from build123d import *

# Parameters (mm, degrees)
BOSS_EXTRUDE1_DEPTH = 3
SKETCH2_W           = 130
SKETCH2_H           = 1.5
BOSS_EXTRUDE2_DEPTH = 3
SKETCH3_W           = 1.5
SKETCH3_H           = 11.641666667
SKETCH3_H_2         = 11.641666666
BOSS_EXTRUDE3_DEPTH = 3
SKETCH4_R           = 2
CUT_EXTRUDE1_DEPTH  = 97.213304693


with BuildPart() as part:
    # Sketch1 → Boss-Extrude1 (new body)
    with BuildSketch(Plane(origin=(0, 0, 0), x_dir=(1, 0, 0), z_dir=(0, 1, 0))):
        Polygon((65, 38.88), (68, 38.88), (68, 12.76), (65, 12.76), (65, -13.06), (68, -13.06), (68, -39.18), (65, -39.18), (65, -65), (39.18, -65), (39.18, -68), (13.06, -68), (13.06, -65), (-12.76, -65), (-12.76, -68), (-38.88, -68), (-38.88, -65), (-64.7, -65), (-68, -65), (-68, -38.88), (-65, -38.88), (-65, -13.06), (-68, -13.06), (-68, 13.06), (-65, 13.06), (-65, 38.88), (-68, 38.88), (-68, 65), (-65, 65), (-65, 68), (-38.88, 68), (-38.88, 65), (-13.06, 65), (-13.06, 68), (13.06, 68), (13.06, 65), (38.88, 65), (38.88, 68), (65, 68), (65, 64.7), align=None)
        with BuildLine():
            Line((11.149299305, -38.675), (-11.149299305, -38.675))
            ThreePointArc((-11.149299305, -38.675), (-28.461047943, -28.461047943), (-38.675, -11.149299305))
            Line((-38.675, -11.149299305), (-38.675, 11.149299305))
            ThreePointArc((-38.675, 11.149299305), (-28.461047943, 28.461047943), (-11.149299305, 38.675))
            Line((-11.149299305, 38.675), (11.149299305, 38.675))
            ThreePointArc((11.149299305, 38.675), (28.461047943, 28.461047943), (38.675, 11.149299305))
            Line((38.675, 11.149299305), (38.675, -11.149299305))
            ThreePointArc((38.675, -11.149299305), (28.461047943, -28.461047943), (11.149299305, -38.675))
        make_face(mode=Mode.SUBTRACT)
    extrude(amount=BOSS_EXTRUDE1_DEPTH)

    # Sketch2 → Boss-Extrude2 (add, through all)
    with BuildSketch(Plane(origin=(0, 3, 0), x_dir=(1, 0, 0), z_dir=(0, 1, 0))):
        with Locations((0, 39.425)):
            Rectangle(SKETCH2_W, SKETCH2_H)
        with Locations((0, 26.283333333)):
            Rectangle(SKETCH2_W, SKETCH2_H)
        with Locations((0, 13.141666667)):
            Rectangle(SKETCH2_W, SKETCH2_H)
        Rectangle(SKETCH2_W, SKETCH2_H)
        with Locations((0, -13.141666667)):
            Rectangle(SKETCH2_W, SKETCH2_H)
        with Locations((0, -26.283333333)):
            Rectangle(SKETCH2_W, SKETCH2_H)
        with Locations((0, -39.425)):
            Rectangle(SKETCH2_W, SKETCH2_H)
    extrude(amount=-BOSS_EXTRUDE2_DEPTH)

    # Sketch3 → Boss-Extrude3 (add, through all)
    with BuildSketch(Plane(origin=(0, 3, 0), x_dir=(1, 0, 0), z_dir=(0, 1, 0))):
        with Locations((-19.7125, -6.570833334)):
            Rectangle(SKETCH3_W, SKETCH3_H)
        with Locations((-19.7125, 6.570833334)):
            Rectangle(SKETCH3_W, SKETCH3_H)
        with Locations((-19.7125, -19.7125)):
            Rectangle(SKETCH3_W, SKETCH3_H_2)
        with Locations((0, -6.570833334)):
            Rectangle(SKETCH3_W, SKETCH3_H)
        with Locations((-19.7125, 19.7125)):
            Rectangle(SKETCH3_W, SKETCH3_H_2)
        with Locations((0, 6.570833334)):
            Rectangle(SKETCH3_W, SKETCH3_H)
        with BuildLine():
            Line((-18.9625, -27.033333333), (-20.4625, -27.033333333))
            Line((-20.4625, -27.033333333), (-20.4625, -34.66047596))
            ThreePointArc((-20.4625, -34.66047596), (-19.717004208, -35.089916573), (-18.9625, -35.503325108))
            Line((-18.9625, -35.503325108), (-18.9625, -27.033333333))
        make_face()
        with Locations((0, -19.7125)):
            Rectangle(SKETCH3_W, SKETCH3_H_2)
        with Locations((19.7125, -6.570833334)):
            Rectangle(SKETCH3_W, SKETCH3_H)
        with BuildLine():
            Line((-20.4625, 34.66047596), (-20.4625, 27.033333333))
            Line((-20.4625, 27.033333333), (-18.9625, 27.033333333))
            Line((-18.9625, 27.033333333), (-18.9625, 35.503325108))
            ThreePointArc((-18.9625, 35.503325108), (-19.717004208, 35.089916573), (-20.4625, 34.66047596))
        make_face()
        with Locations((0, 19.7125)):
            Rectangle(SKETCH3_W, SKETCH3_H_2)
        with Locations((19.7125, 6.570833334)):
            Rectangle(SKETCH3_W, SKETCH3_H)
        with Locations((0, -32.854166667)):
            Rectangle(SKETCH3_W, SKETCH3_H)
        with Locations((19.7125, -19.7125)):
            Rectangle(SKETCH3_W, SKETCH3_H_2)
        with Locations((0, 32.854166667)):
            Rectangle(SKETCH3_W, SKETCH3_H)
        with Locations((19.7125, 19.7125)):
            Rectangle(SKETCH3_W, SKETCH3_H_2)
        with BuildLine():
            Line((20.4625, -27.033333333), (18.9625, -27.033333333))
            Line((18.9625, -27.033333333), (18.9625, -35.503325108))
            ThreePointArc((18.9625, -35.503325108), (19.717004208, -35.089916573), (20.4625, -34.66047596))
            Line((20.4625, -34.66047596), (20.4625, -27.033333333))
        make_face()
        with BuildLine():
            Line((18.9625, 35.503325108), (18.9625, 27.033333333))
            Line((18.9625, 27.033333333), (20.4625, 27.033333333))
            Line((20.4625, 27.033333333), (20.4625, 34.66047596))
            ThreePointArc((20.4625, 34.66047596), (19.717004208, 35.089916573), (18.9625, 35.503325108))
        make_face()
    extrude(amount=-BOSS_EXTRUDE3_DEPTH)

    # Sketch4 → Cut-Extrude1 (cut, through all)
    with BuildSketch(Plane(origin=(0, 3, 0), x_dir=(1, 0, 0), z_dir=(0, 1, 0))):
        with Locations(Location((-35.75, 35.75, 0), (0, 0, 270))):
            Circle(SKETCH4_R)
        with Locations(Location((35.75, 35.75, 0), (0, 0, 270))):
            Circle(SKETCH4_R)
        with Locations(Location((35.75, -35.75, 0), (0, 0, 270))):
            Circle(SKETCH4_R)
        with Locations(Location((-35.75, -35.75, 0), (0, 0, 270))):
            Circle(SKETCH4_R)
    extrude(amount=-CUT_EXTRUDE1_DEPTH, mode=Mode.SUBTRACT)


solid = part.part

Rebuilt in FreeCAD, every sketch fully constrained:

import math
import FreeCAD as App
import Part
import Sketcher
Q = App.Units.Quantity

doc = App.newDocument("Part")
body = doc.addObject("PartDesign::Body", "Body")

sketch1 = doc.addObject("Sketcher::SketchObject", "Sketch")
body.addObject(sketch1)
sketch1.AttachmentSupport = (doc.XZ_Plane, [""])
sketch1.MapMode = "FlatFace"
sketch1.addGeometry([
    Part.LineSegment(App.Vector(68, -38.88, 0), App.Vector(65, -38.88, 0)),
    Part.LineSegment(App.Vector(65, -38.88, 0), App.Vector(65, -68, 0)),
    Part.LineSegment(App.Vector(65, -68, 0), App.Vector(38.88, -68, 0)),
    Part.LineSegment(App.Vector(38.88, -68, 0), App.Vector(38.88, -65, 0)),
    Part.LineSegment(App.Vector(38.88, -65, 0), App.Vector(13.06, -65, 0)),
    Part.LineSegment(App.Vector(13.06, -65, 0), App.Vector(13.06, -68, 0)),
    Part.LineSegment(App.Vector(13.06, -68, 0), App.Vector(-13.06, -68, 0)),
    Part.LineSegment(App.Vector(-13.06, -68, 0), App.Vector(-13.06, -65, 0)),
    Part.LineSegment(App.Vector(-13.06, -65, 0), App.Vector(-38.88, -65, 0)),
    Part.LineSegment(App.Vector(-38.88, -65, 0), App.Vector(-38.88, -68, 0)),
    Part.LineSegment(App.Vector(-38.88, -68, 0), App.Vector(-65, -68, 0)),
    Part.LineSegment(App.Vector(-65, -68, 0), App.Vector(-65, -65, 0)),
    Part.LineSegment(App.Vector(-65, -65, 0), App.Vector(-68, -65, 0)),
    Part.LineSegment(App.Vector(-68, -65, 0), App.Vector(-68, -38.88, 0)),
    Part.LineSegment(App.Vector(-68, -38.88, 0), App.Vector(-65, -38.88, 0)),
    Part.LineSegment(App.Vector(-65, -38.88, 0), App.Vector(-65, -13.06, 0)),
    Part.LineSegment(App.Vector(-65, -13.06, 0), App.Vector(-68, -13.06, 0)),
    Part.LineSegment(App.Vector(-68, -13.06, 0), App.Vector(-68, 13.06, 0)),
    Part.LineSegment(App.Vector(-68, 13.06, 0), App.Vector(-65, 13.06, 0)),
    Part.LineSegment(App.Vector(-65, 13.06, 0), App.Vector(-65, 38.88, 0)),
    Part.LineSegment(App.Vector(-65, 38.88, 0), App.Vector(-68, 38.88, 0)),
    Part.LineSegment(App.Vector(-68, 38.88, 0), App.Vector(-68, 65, 0)),
    Part.LineSegment(App.Vector(-68, 65, 0), App.Vector(-38.88, 65, 0)),
    Part.LineSegment(App.Vector(-38.88, 65, 0), App.Vector(-38.88, 68, 0)),
    Part.LineSegment(App.Vector(-38.88, 68, 0), App.Vector(-12.76, 68, 0)),
    Part.LineSegment(App.Vector(-12.76, 68, 0), App.Vector(-12.76, 65, 0)),
    Part.LineSegment(App.Vector(-12.76, 65, 0), App.Vector(13.06, 65, 0)),
    Part.LineSegment(App.Vector(13.06, 65, 0), App.Vector(13.06, 68, 0)),
    Part.LineSegment(App.Vector(13.06, 68, 0), App.Vector(39.18, 68, 0)),
    Part.LineSegment(App.Vector(39.18, 68, 0), App.Vector(39.18, 65, 0)),
    Part.LineSegment(App.Vector(39.18, 65, 0), App.Vector(65, 65, 0)),
    Part.LineSegment(App.Vector(65, 65, 0), App.Vector(65, 39.18, 0)),
    Part.LineSegment(App.Vector(65, 39.18, 0), App.Vector(68, 39.18, 0)),
    Part.LineSegment(App.Vector(68, 39.18, 0), App.Vector(68, 13.06, 0)),
    Part.LineSegment(App.Vector(68, 13.06, 0), App.Vector(65, 13.06, 0)),
    Part.LineSegment(App.Vector(65, 13.06, 0), App.Vector(65, -12.76, 0)),
    Part.LineSegment(App.Vector(65, -12.76, 0), App.Vector(68, -12.76, 0)),
    Part.LineSegment(App.Vector(68, -12.76, 0), App.Vector(68, -38.88, 0)),
    Part.LineSegment(App.Vector(11.149299, 38.675, 0), App.Vector(-11.149299, 38.675, 0)),
    Part.ArcOfCircle(Part.Circle(App.Vector(0, 0, 0), App.Vector(0, 0, 1), 40.25), math.radians(106.08131), math.radians(163.91869)),
    Part.LineSegment(App.Vector(-38.675, 11.149299, 0), App.Vector(-38.675, -11.149299, 0)),
    Part.ArcOfCircle(Part.Circle(App.Vector(0, 0, 0), App.Vector(0, 0, 1), 40.25), math.radians(-163.91869), math.radians(-106.08131)),
    Part.LineSegment(App.Vector(-11.149299, -38.675, 0), App.Vector(11.149299, -38.675, 0)),
    Part.ArcOfCircle(Part.Circle(App.Vector(0, 0, 0), App.Vector(0, 0, 1), 40.25), math.radians(-73.91869), math.radians(-16.08131)),
    Part.LineSegment(App.Vector(38.675, -11.149299, 0), App.Vector(38.675, 11.149299, 0)),
    Part.ArcOfCircle(Part.Circle(App.Vector(0, 0, 0), App.Vector(0, 0, 1), 40.25), math.radians(16.08131), math.radians(73.91869)),
], False)
sketch1.addConstraint([
    Sketcher.Constraint("Coincident", 0, 2, 1, 1),
    Sketcher.Constraint("Coincident", 1, 2, 2, 1),
    Sketcher.Constraint("Coincident", 2, 2, 3, 1),
    Sketcher.Constraint("Coincident", 3, 2, 4, 1),
    Sketcher.Constraint("Coincident", 4, 2, 5, 1),
    Sketcher.Constraint("Coincident", 5, 2, 6, 1),
    Sketcher.Constraint("Coincident", 6, 2, 7, 1),
    Sketcher.Constraint("Coincident", 7, 2, 8, 1),
    Sketcher.Constraint("Coincident", 8, 2, 9, 1),
    Sketcher.Constraint("Coincident", 9, 2, 10, 1),
    Sketcher.Constraint("Coincident", 10, 2, 11, 1),
    Sketcher.Constraint("Coincident", 11, 2, 12, 1),
    Sketcher.Constraint("Coincident", 12, 2, 13, 1),
    Sketcher.Constraint("Coincident", 13, 2, 14, 1),
    Sketcher.Constraint("Coincident", 14, 2, 15, 1),
    Sketcher.Constraint("Coincident", 15, 2, 16, 1),
    Sketcher.Constraint("Coincident", 16, 2, 17, 1),
    Sketcher.Constraint("Coincident", 17, 2, 18, 1),
    Sketcher.Constraint("Coincident", 18, 2, 19, 1),
    Sketcher.Constraint("Coincident", 19, 2, 20, 1),
    Sketcher.Constraint("Coincident", 20, 2, 21, 1),
    Sketcher.Constraint("Coincident", 21, 2, 22, 1),
    Sketcher.Constraint("Coincident", 22, 2, 23, 1),
    Sketcher.Constraint("Coincident", 23, 2, 24, 1),
    Sketcher.Constraint("Coincident", 24, 2, 25, 1),
    Sketcher.Constraint("Coincident", 25, 2, 26, 1),
    Sketcher.Constraint("Coincident", 26, 2, 27, 1),
    Sketcher.Constraint("Coincident", 27, 2, 28, 1),
    Sketcher.Constraint("Coincident", 28, 2, 29, 1),
    Sketcher.Constraint("Coincident", 29, 2, 30, 1),
    Sketcher.Constraint("Coincident", 30, 2, 31, 1),
    Sketcher.Constraint("Coincident", 31, 2, 32, 1),
    Sketcher.Constraint("Coincident", 32, 2, 33, 1),
    Sketcher.Constraint("Coincident", 33, 2, 34, 1),
    Sketcher.Constraint("Coincident", 34, 2, 35, 1),
    Sketcher.Constraint("Coincident", 35, 2, 36, 1),
    Sketcher.Constraint("Coincident", 36, 2, 37, 1),
    Sketcher.Constraint("Coincident", 37, 2, 0, 1),
    Sketcher.Constraint("Coincident", 38, 2, 39, 1),
    Sketcher.Constraint("Coincident", 39, 2, 40, 1),
    Sketcher.Constraint("Coincident", 40, 2, 41, 1),
    Sketcher.Constraint("Coincident", 41, 2, 42, 1),
    Sketcher.Constraint("Coincident", 42, 2, 43, 1),
    Sketcher.Constraint("Coincident", 43, 2, 44, 1),
    Sketcher.Constraint("Coincident", 44, 2, 45, 1),
    Sketcher.Constraint("Coincident", 45, 2, 38, 1),
    Sketcher.Constraint("Horizontal", 0),
    Sketcher.Constraint("Vertical", 1),
    Sketcher.Constraint("Horizontal", 2),
    Sketcher.Constraint("Vertical", 3),
    Sketcher.Constraint("Horizontal", 4),
    Sketcher.Constraint("Vertical", 5),
    Sketcher.Constraint("Horizontal", 6),
    Sketcher.Constraint("Vertical", 7),
    Sketcher.Constraint("Horizontal", 8),
    Sketcher.Constraint("Vertical", 9),
    Sketcher.Constraint("Horizontal", 10),
    Sketcher.Constraint("Vertical", 11),
    Sketcher.Constraint("Horizontal", 12),
    Sketcher.Constraint("Vertical", 13),
    Sketcher.Constraint("Horizontal", 14),
    Sketcher.Constraint("Vertical", 15),
    Sketcher.Constraint("Horizontal", 16),
    Sketcher.Constraint("Vertical", 17),
    Sketcher.Constraint("Horizontal", 18),
    Sketcher.Constraint("Vertical", 19),
    Sketcher.Constraint("Horizontal", 20),
    Sketcher.Constraint("Vertical", 21),
    Sketcher.Constraint("Horizontal", 22),
    Sketcher.Constraint("Vertical", 23),
    Sketcher.Constraint("Horizontal", 24),
    Sketcher.Constraint("Vertical", 25),
    Sketcher.Constraint("Horizontal", 26),
    Sketcher.Constraint("Vertical", 27),
    Sketcher.Constraint("Horizontal", 28),
    Sketcher.Constraint("Vertical", 29),
    Sketcher.Constraint("Horizontal", 30),
    Sketcher.Constraint("Vertical", 31),
    Sketcher.Constraint("Horizontal", 32),
    Sketcher.Constraint("Vertical", 33),
    Sketcher.Constraint("Horizontal", 34),
    Sketcher.Constraint("Vertical", 35),
    Sketcher.Constraint("Horizontal", 36),
    Sketcher.Constraint("Vertical", 37),
    Sketcher.Constraint("Horizontal", 38),
    Sketcher.Constraint("Vertical", 40),
    Sketcher.Constraint("Horizontal", 42),
    Sketcher.Constraint("Vertical", 44),
    Sketcher.Constraint("Coincident", 39, 3, -1, 1),
    Sketcher.Constraint("Coincident", 41, 3, -1, 1),
    Sketcher.Constraint("Coincident", 43, 3, -1, 1),
    Sketcher.Constraint("Coincident", 45, 3, -1, 1),
    Sketcher.Constraint("Equal", 39, 41),
    Sketcher.Constraint("Equal", 41, 43),
    Sketcher.Constraint("Equal", 43, 45),
    Sketcher.Constraint("Symmetric", 0, 2, 19, 2, -1, 1),
    Sketcher.Constraint("Symmetric", 3, 2, 22, 2, -1, 1),
    Sketcher.Constraint("Symmetric", 7, 2, 26, 2, -1, 1),
    Sketcher.Constraint("Symmetric", 11, 2, 30, 2, -1, 1),
    Sketcher.Constraint("Symmetric", 16, 2, 33, 2, -1, 1),
    Sketcher.Constraint("Symmetric", 4, 2, 7, 2, -2),
    Sketcher.Constraint("Symmetric", 2, 2, 9, 2, -2),
    Sketcher.Constraint("Symmetric", 0, 2, 14, 2, -2),
    Sketcher.Constraint("Symmetric", 18, 2, 34, 2, -2),
    Sketcher.Constraint("Symmetric", 12, 2, 21, 2, -1),
    Sketcher.Constraint("Horizontal", 2, 2, 5, 2),
    Sketcher.Constraint("Horizontal", 24, 2, 27, 2),
    Sketcher.Constraint("Horizontal", 40, 2, 43, 2),
    Sketcher.Constraint("Vertical", 11, 2, 14, 2),
    Sketcher.Constraint("Vertical", 13, 2, 16, 2),
    Sketcher.Constraint("Vertical", 33, 2, 36, 2),
    Sketcher.Constraint("Vertical", 38, 2, 41, 2),
    Sketcher.Constraint("Equal", 2, 6),
    Sketcher.Constraint("Equal", 10, 24),
    Sketcher.Constraint("Equal", 24, 28),
    Sketcher.Constraint("Equal", 22, 1),
    Sketcher.Constraint("Equal", 36, 3),
    Sketcher.Constraint("Equal", 30, 15),
    Sketcher.Constraint("Equal", 13, 17),
    Sketcher.Constraint("Equal", 11, 23),
    Sketcher.Constraint("Equal", 19, 31),
    Sketcher.Constraint("Equal", 31, 35),
    Sketcher.Constraint("Equal", 42, 40),
    Sketcher.Constraint("DistanceX", 0, 2, 0, 1, Q("3 mm")),
    Sketcher.Constraint("Radius", 39, Q("40.25 mm")),
    Sketcher.Constraint("DistanceX", -1, 1, 0, 2, Q("65 mm")),
    Sketcher.Constraint("DistanceX", 2, 2, 2, 1, Q("26.12 mm")),
    Sketcher.Constraint("DistanceX", 38, 2, 38, 1, Q("22.298599 mm")),
])
pad1 = doc.addObject("PartDesign::Pad", "Pad")
body.addObject(pad1)
pad1.Profile = sketch1
pad1.Length = 3
pad1.Reversed = True

sketch2 = doc.addObject("Sketcher::SketchObject", "Sketch001")
body.addObject(sketch2)
sketch2.AttachmentSupport = (doc.XZ_Plane, [""])
sketch2.MapMode = "FlatFace"
sketch2.AttachmentOffset = App.Placement(App.Vector(0, 0, -3), App.Rotation())
sketch2.addGeometry([
    Part.LineSegment(App.Vector(-65, -40.175, 0), App.Vector(-65, -38.675, 0)),
    Part.LineSegment(App.Vector(-65, -38.675, 0), App.Vector(65, -38.675, 0)),
    Part.LineSegment(App.Vector(65, -38.675, 0), App.Vector(65, -40.175, 0)),
    Part.LineSegment(App.Vector(65, -40.175, 0), App.Vector(-65, -40.175, 0)),
    Part.LineSegment(App.Vector(-65, -27.033333, 0), App.Vector(-65, -25.533333, 0)),
    Part.LineSegment(App.Vector(-65, -25.533333, 0), App.Vector(65, -25.533333, 0)),
    Part.LineSegment(App.Vector(65, -25.533333, 0), App.Vector(65, -27.033333, 0)),
    Part.LineSegment(App.Vector(65, -27.033333, 0), App.Vector(-65, -27.033333, 0)),
    Part.LineSegment(App.Vector(-65, -13.891667, 0), App.Vector(-65, -12.391667, 0)),
    Part.LineSegment(App.Vector(-65, -12.391667, 0), App.Vector(65, -12.391667, 0)),
    Part.LineSegment(App.Vector(65, -12.391667, 0), App.Vector(65, -13.891667, 0)),
    Part.LineSegment(App.Vector(65, -13.891667, 0), App.Vector(-65, -13.891667, 0)),
    Part.LineSegment(App.Vector(-65, -0.75, 0), App.Vector(-65, 0.75, 0)),
    Part.LineSegment(App.Vector(-65, 0.75, 0), App.Vector(65, 0.75, 0)),
    Part.LineSegment(App.Vector(65, 0.75, 0), App.Vector(65, -0.75, 0)),
    Part.LineSegment(App.Vector(65, -0.75, 0), App.Vector(-65, -0.75, 0)),
    Part.LineSegment(App.Vector(-65, 12.391667, 0), App.Vector(-65, 13.891667, 0)),
    Part.LineSegment(App.Vector(-65, 13.891667, 0), App.Vector(65, 13.891667, 0)),
    Part.LineSegment(App.Vector(65, 13.891667, 0), App.Vector(65, 12.391667, 0)),
    Part.LineSegment(App.Vector(65, 12.391667, 0), App.Vector(-65, 12.391667, 0)),
    Part.LineSegment(App.Vector(-65, 25.533333, 0), App.Vector(-65, 27.033333, 0)),
    Part.LineSegment(App.Vector(-65, 27.033333, 0), App.Vector(65, 27.033333, 0)),
    Part.LineSegment(App.Vector(65, 27.033333, 0), App.Vector(65, 25.533333, 0)),
    Part.LineSegment(App.Vector(65, 25.533333, 0), App.Vector(-65, 25.533333, 0)),
    Part.LineSegment(App.Vector(-65, 38.675, 0), App.Vector(-65, 40.175, 0)),
    Part.LineSegment(App.Vector(-65, 40.175, 0), App.Vector(65, 40.175, 0)),
    Part.LineSegment(App.Vector(65, 40.175, 0), App.Vector(65, 38.675, 0)),
    Part.LineSegment(App.Vector(65, 38.675, 0), App.Vector(-65, 38.675, 0)),
], False)
sketch2.addConstraint([
    Sketcher.Constraint("Coincident", 0, 2, 1, 1),
    Sketcher.Constraint("Coincident", 1, 2, 2, 1),
    Sketcher.Constraint("Coincident", 2, 2, 3, 1),
    Sketcher.Constraint("Coincident", 3, 2, 0, 1),
    Sketcher.Constraint("Coincident", 4, 2, 5, 1),
    Sketcher.Constraint("Coincident", 5, 2, 6, 1),
    Sketcher.Constraint("Coincident", 6, 2, 7, 1),
    Sketcher.Constraint("Coincident", 7, 2, 4, 1),
    Sketcher.Constraint("Coincident", 8, 2, 9, 1),
    Sketcher.Constraint("Coincident", 9, 2, 10, 1),
    Sketcher.Constraint("Coincident", 10, 2, 11, 1),
    Sketcher.Constraint("Coincident", 11, 2, 8, 1),
    Sketcher.Constraint("Coincident", 12, 2, 13, 1),
    Sketcher.Constraint("Coincident", 13, 2, 14, 1),
    Sketcher.Constraint("Coincident", 14, 2, 15, 1),
    Sketcher.Constraint("Coincident", 15, 2, 12, 1),
    Sketcher.Constraint("Coincident", 16, 2, 17, 1),
    Sketcher.Constraint("Coincident", 17, 2, 18, 1),
    Sketcher.Constraint("Coincident", 18, 2, 19, 1),
    Sketcher.Constraint("Coincident", 19, 2, 16, 1),
    Sketcher.Constraint("Coincident", 20, 2, 21, 1),
    Sketcher.Constraint("Coincident", 21, 2, 22, 1),
    Sketcher.Constraint("Coincident", 22, 2, 23, 1),
    Sketcher.Constraint("Coincident", 23, 2, 20, 1),
    Sketcher.Constraint("Coincident", 24, 2, 25, 1),
    Sketcher.Constraint("Coincident", 25, 2, 26, 1),
    Sketcher.Constraint("Coincident", 26, 2, 27, 1),
    Sketcher.Constraint("Coincident", 27, 2, 24, 1),
    Sketcher.Constraint("Vertical", 0),
    Sketcher.Constraint("Horizontal", 1),
    Sketcher.Constraint("Vertical", 2),
    Sketcher.Constraint("Horizontal", 3),
    Sketcher.Constraint("Vertical", 4),
    Sketcher.Constraint("Horizontal", 5),
    Sketcher.Constraint("Vertical", 6),
    Sketcher.Constraint("Horizontal", 7),
    Sketcher.Constraint("Vertical", 8),
    Sketcher.Constraint("Horizontal", 9),
    Sketcher.Constraint("Vertical", 10),
    Sketcher.Constraint("Horizontal", 11),
    Sketcher.Constraint("Vertical", 12),
    Sketcher.Constraint("Horizontal", 13),
    Sketcher.Constraint("Vertical", 14),
    Sketcher.Constraint("Horizontal", 15),
    Sketcher.Constraint("Vertical", 16),
    Sketcher.Constraint("Horizontal", 17),
    Sketcher.Constraint("Vertical", 18),
    Sketcher.Constraint("Horizontal", 19),
    Sketcher.Constraint("Vertical", 20),
    Sketcher.Constraint("Horizontal", 21),
    Sketcher.Constraint("Vertical", 22),
    Sketcher.Constraint("Horizontal", 23),
    Sketcher.Constraint("Vertical", 24),
    Sketcher.Constraint("Horizontal", 25),
    Sketcher.Constraint("Vertical", 26),
    Sketcher.Constraint("Horizontal", 27),
    Sketcher.Constraint("Symmetric", 12, 2, 14, 2, -1, 1),
    Sketcher.Constraint("Symmetric", 10, 2, 16, 2, -1, 1),
    Sketcher.Constraint("Symmetric", 8, 2, 18, 2, -1, 1),
    Sketcher.Constraint("Symmetric", 6, 2, 20, 2, -1, 1),
    Sketcher.Constraint("Symmetric", 4, 2, 22, 2, -1, 1),
    Sketcher.Constraint("Symmetric", 2, 2, 24, 2, -1, 1),
    Sketcher.Constraint("Symmetric", 0, 2, 26, 2, -1, 1),
    Sketcher.Constraint("Vertical", 3, 2, 4, 2),
    Sketcher.Constraint("Vertical", 2, 2, 5, 2),
    Sketcher.Constraint("Vertical", 7, 2, 8, 2),
    Sketcher.Constraint("Vertical", 6, 2, 9, 2),
    Sketcher.Constraint("Vertical", 11, 2, 12, 2),
    Sketcher.Constraint("Vertical", 10, 2, 13, 2),
    Sketcher.Constraint("Equal", 2, 4),
    Sketcher.Constraint("Equal", 6, 8),
    Sketcher.Constraint("Equal", 10, 12),
    Sketcher.Constraint("DistanceX", 1, 1, 1, 2, Q("130 mm")),
    Sketcher.Constraint("DistanceY", 0, 1, 0, 2, Q("1.5 mm")),
    Sketcher.Constraint("DistanceY", 0, 2, -1, 1, Q("38.675 mm")),
    Sketcher.Constraint("DistanceY", 4, 2, 16, 2, Q("39.425 mm")),
    Sketcher.Constraint("DistanceY", 4, 2, -1, 1, Q("25.533333 mm")),
])
pad2 = doc.addObject("PartDesign::Pad", "Pad001")
body.addObject(pad2)
pad2.Profile = sketch2
pad2.Length = 3

sketch3 = doc.addObject("Sketcher::SketchObject", "Sketch002")
body.addObject(sketch3)
sketch3.AttachmentSupport = (doc.XZ_Plane, [""])
sketch3.MapMode = "FlatFace"
sketch3.AttachmentOffset = App.Placement(App.Vector(0, 0, -3), App.Rotation())
sketch3.addGeometry([
    Part.LineSegment(App.Vector(-20.4625, 0.75, 0), App.Vector(-20.4625, 12.391667, 0)),
    Part.LineSegment(App.Vector(-20.4625, 12.391667, 0), App.Vector(-18.9625, 12.391667, 0)),
    Part.LineSegment(App.Vector(-18.9625, 12.391667, 0), App.Vector(-18.9625, 0.75, 0)),
    Part.LineSegment(App.Vector(-18.9625, 0.75, 0), App.Vector(-20.4625, 0.75, 0)),
    Part.LineSegment(App.Vector(-20.4625, -12.391667, 0), App.Vector(-20.4625, -0.75, 0)),
    Part.LineSegment(App.Vector(-20.4625, -0.75, 0), App.Vector(-18.9625, -0.75, 0)),
    Part.LineSegment(App.Vector(-18.9625, -0.75, 0), App.Vector(-18.9625, -12.391667, 0)),
    Part.LineSegment(App.Vector(-18.9625, -12.391667, 0), App.Vector(-20.4625, -12.391667, 0)),
    Part.LineSegment(App.Vector(-20.4625, 13.891667, 0), App.Vector(-20.4625, 25.533333, 0)),
    Part.LineSegment(App.Vector(-20.4625, 25.533333, 0), App.Vector(-18.9625, 25.533333, 0)),
    Part.LineSegment(App.Vector(-18.9625, 25.533333, 0), App.Vector(-18.9625, 13.891667, 0)),
    Part.LineSegment(App.Vector(-18.9625, 13.891667, 0), App.Vector(-20.4625, 13.891667, 0)),
    Part.LineSegment(App.Vector(-0.75, 0.75, 0), App.Vector(-0.75, 12.391667, 0)),
    Part.LineSegment(App.Vector(-0.75, 12.391667, 0), App.Vector(0.75, 12.391667, 0)),
    Part.LineSegment(App.Vector(0.75, 12.391667, 0), App.Vector(0.75, 0.75, 0)),
    Part.LineSegment(App.Vector(0.75, 0.75, 0), App.Vector(-0.75, 0.75, 0)),
    Part.LineSegment(App.Vector(-20.4625, -25.533333, 0), App.Vector(-20.4625, -13.891667, 0)),
    Part.LineSegment(App.Vector(-20.4625, -13.891667, 0), App.Vector(-18.9625, -13.891667, 0)),
    Part.LineSegment(App.Vector(-18.9625, -13.891667, 0), App.Vector(-18.9625, -25.533333, 0)),
    Part.LineSegment(App.Vector(-18.9625, -25.533333, 0), App.Vector(-20.4625, -25.533333, 0)),
    Part.LineSegment(App.Vector(-0.75, -12.391667, 0), App.Vector(-0.75, -0.75, 0)),
    Part.LineSegment(App.Vector(-0.75, -0.75, 0), App.Vector(0.75, -0.75, 0)),
    Part.LineSegment(App.Vector(0.75, -0.75, 0), App.Vector(0.75, -12.391667, 0)),
    Part.LineSegment(App.Vector(0.75, -12.391667, 0), App.Vector(-0.75, -12.391667, 0)),
    Part.LineSegment(App.Vector(-18.9625, 27.033333, 0), App.Vector(-20.4625, 27.033333, 0)),
    Part.LineSegment(App.Vector(-20.4625, 27.033333, 0), App.Vector(-20.4625, 34.660476, 0)),
    Part.ArcOfCircle(Part.Circle(App.Vector(-0.000001, 0.000002, 0), App.Vector(0, 0, 1), 40.249998), math.radians(118.106894), math.radians(120.556321)),
    Part.LineSegment(App.Vector(-18.9625, 35.503325, 0), App.Vector(-18.9625, 27.033333, 0)),
    Part.LineSegment(App.Vector(-0.75, 13.891667, 0), App.Vector(-0.75, 25.533333, 0)),
    Part.LineSegment(App.Vector(-0.75, 25.533333, 0), App.Vector(0.75, 25.533333, 0)),
    Part.LineSegment(App.Vector(0.75, 25.533333, 0), App.Vector(0.75, 13.891667, 0)),
    Part.LineSegment(App.Vector(0.75, 13.891667, 0), App.Vector(-0.75, 13.891667, 0)),
    Part.LineSegment(App.Vector(18.9625, 0.75, 0), App.Vector(18.9625, 12.391667, 0)),
    Part.LineSegment(App.Vector(18.9625, 12.391667, 0), App.Vector(20.4625, 12.391667, 0)),
    Part.LineSegment(App.Vector(20.4625, 12.391667, 0), App.Vector(20.4625, 0.75, 0)),
    Part.LineSegment(App.Vector(20.4625, 0.75, 0), App.Vector(18.9625, 0.75, 0)),
    Part.LineSegment(App.Vector(-20.4625, -34.660476, 0), App.Vector(-20.4625, -27.033333, 0)),
    Part.LineSegment(App.Vector(-20.4625, -27.033333, 0), App.Vector(-18.9625, -27.033333, 0)),
    Part.LineSegment(App.Vector(-18.9625, -27.033333, 0), App.Vector(-18.9625, -35.503325, 0)),
    Part.ArcOfCircle(Part.Circle(App.Vector(-0.000001, -0.000002, 0), App.Vector(0, 0, 1), 40.249998), math.radians(-120.556321), math.radians(-118.106894)),
    Part.LineSegment(App.Vector(-0.75, -25.533333, 0), App.Vector(-0.75, -13.891667, 0)),
    Part.LineSegment(App.Vector(-0.75, -13.891667, 0), App.Vector(0.75, -13.891667, 0)),
    Part.LineSegment(App.Vector(0.75, -13.891667, 0), App.Vector(0.75, -25.533333, 0)),
    Part.LineSegment(App.Vector(0.75, -25.533333, 0), App.Vector(-0.75, -25.533333, 0)),
    Part.LineSegment(App.Vector(18.9625, -12.391667, 0), App.Vector(18.9625, -0.75, 0)),
    Part.LineSegment(App.Vector(18.9625, -0.75, 0), App.Vector(20.4625, -0.75, 0)),
    Part.LineSegment(App.Vector(20.4625, -0.75, 0), App.Vector(20.4625, -12.391667, 0)),
    Part.LineSegment(App.Vector(20.4625, -12.391667, 0), App.Vector(18.9625, -12.391667, 0)),
    Part.LineSegment(App.Vector(-0.75, 27.033333, 0), App.Vector(-0.75, 38.675, 0)),
    Part.LineSegment(App.Vector(-0.75, 38.675, 0), App.Vector(0.75, 38.675, 0)),
    Part.LineSegment(App.Vector(0.75, 38.675, 0), App.Vector(0.75, 27.033333, 0)),
    Part.LineSegment(App.Vector(0.75, 27.033333, 0), App.Vector(-0.75, 27.033333, 0)),
    Part.LineSegment(App.Vector(18.9625, 13.891667, 0), App.Vector(18.9625, 25.533333, 0)),
    Part.LineSegment(App.Vector(18.9625, 25.533333, 0), App.Vector(20.4625, 25.533333, 0)),
    Part.LineSegment(App.Vector(20.4625, 25.533333, 0), App.Vector(20.4625, 13.891667, 0)),
    Part.LineSegment(App.Vector(20.4625, 13.891667, 0), App.Vector(18.9625, 13.891667, 0)),
    Part.LineSegment(App.Vector(-0.75, -38.675, 0), App.Vector(-0.75, -27.033333, 0)),
    Part.LineSegment(App.Vector(-0.75, -27.033333, 0), App.Vector(0.75, -27.033333, 0)),
    Part.LineSegment(App.Vector(0.75, -27.033333, 0), App.Vector(0.75, -38.675, 0)),
    Part.LineSegment(App.Vector(0.75, -38.675, 0), App.Vector(-0.75, -38.675, 0)),
    Part.LineSegment(App.Vector(18.9625, -25.533333, 0), App.Vector(18.9625, -13.891667, 0)),
    Part.LineSegment(App.Vector(18.9625, -13.891667, 0), App.Vector(20.4625, -13.891667, 0)),
    Part.LineSegment(App.Vector(20.4625, -13.891667, 0), App.Vector(20.4625, -25.533333, 0)),
    Part.LineSegment(App.Vector(20.4625, -25.533333, 0), App.Vector(18.9625, -25.533333, 0)),
    Part.LineSegment(App.Vector(20.4625, 27.033333, 0), App.Vector(18.9625, 27.033333, 0)),
    Part.LineSegment(App.Vector(18.9625, 27.033333, 0), App.Vector(18.9625, 35.503325, 0)),
    Part.ArcOfCircle(Part.Circle(App.Vector(0.000001, 0.000002, 0), App.Vector(0, 0, 1), 40.249998), math.radians(59.443679), math.radians(61.893106)),
    Part.LineSegment(App.Vector(20.4625, 34.660476, 0), App.Vector(20.4625, 27.033333, 0)),
    Part.LineSegment(App.Vector(18.9625, -35.503325, 0), App.Vector(18.9625, -27.033333, 0)),
    Part.LineSegment(App.Vector(18.9625, -27.033333, 0), App.Vector(20.4625, -27.033333, 0)),
    Part.LineSegment(App.Vector(20.4625, -27.033333, 0), App.Vector(20.4625, -34.660476, 0)),
    Part.ArcOfCircle(Part.Circle(App.Vector(0.000001, -0.000002, 0), App.Vector(0, 0, 1), 40.249998), math.radians(-61.893106), math.radians(-59.443679)),
], False)
sketch3.addConstraint([
    Sketcher.Constraint("Coincident", 0, 2, 1, 1),
    Sketcher.Constraint("Coincident", 1, 2, 2, 1),
    Sketcher.Constraint("Coincident", 2, 2, 3, 1),
    Sketcher.Constraint("Coincident", 3, 2, 0, 1),
    Sketcher.Constraint("Coincident", 4, 2, 5, 1),
    Sketcher.Constraint("Coincident", 5, 2, 6, 1),
    Sketcher.Constraint("Coincident", 6, 2, 7, 1),
    Sketcher.Constraint("Coincident", 7, 2, 4, 1),
    Sketcher.Constraint("Coincident", 8, 2, 9, 1),
    Sketcher.Constraint("Coincident", 9, 2, 10, 1),
    Sketcher.Constraint("Coincident", 10, 2, 11, 1),
    Sketcher.Constraint("Coincident", 11, 2, 8, 1),
    Sketcher.Constraint("Coincident", 12, 2, 13, 1),
    Sketcher.Constraint("Coincident", 13, 2, 14, 1),
    Sketcher.Constraint("Coincident", 14, 2, 15, 1),
    Sketcher.Constraint("Coincident", 15, 2, 12, 1),
    Sketcher.Constraint("Coincident", 16, 2, 17, 1),
    Sketcher.Constraint("Coincident", 17, 2, 18, 1),
    Sketcher.Constraint("Coincident", 18, 2, 19, 1),
    Sketcher.Constraint("Coincident", 19, 2, 16, 1),
    Sketcher.Constraint("Coincident", 20, 2, 21, 1),
    Sketcher.Constraint("Coincident", 21, 2, 22, 1),
    Sketcher.Constraint("Coincident", 22, 2, 23, 1),
    Sketcher.Constraint("Coincident", 23, 2, 20, 1),
    Sketcher.Constraint("Coincident", 24, 2, 25, 1),
    Sketcher.Constraint("Coincident", 25, 2, 26, 2),
    Sketcher.Constraint("Coincident", 26, 1, 27, 1),
    Sketcher.Constraint("Coincident", 27, 2, 24, 1),
    Sketcher.Constraint("Coincident", 28, 2, 29, 1),
    Sketcher.Constraint("Coincident", 29, 2, 30, 1),
    Sketcher.Constraint("Coincident", 30, 2, 31, 1),
    Sketcher.Constraint("Coincident", 31, 2, 28, 1),
    Sketcher.Constraint("Coincident", 32, 2, 33, 1),
    Sketcher.Constraint("Coincident", 33, 2, 34, 1),
    Sketcher.Constraint("Coincident", 34, 2, 35, 1),
    Sketcher.Constraint("Coincident", 35, 2, 32, 1),
    Sketcher.Constraint("Coincident", 36, 2, 37, 1),
    Sketcher.Constraint("Coincident", 37, 2, 38, 1),
    Sketcher.Constraint("Coincident", 38, 2, 39, 2),
    Sketcher.Constraint("Coincident", 39, 1, 36, 1),
    Sketcher.Constraint("Coincident", 40, 2, 41, 1),
    Sketcher.Constraint("Coincident", 41, 2, 42, 1),
    Sketcher.Constraint("Coincident", 42, 2, 43, 1),
    Sketcher.Constraint("Coincident", 43, 2, 40, 1),
    Sketcher.Constraint("Coincident", 44, 2, 45, 1),
    Sketcher.Constraint("Coincident", 45, 2, 46, 1),
    Sketcher.Constraint("Coincident", 46, 2, 47, 1),
    Sketcher.Constraint("Coincident", 47, 2, 44, 1),
    Sketcher.Constraint("Coincident", 48, 2, 49, 1),
    Sketcher.Constraint("Coincident", 49, 2, 50, 1),
    Sketcher.Constraint("Coincident", 50, 2, 51, 1),
    Sketcher.Constraint("Coincident", 51, 2, 48, 1),
    Sketcher.Constraint("Coincident", 52, 2, 53, 1),
    Sketcher.Constraint("Coincident", 53, 2, 54, 1),
    Sketcher.Constraint("Coincident", 54, 2, 55, 1),
    Sketcher.Constraint("Coincident", 55, 2, 52, 1),
    Sketcher.Constraint("Coincident", 56, 2, 57, 1),
    Sketcher.Constraint("Coincident", 57, 2, 58, 1),
    Sketcher.Constraint("Coincident", 58, 2, 59, 1),
    Sketcher.Constraint("Coincident", 59, 2, 56, 1),
    Sketcher.Constraint("Coincident", 60, 2, 61, 1),
    Sketcher.Constraint("Coincident", 61, 2, 62, 1),
    Sketcher.Constraint("Coincident", 62, 2, 63, 1),
    Sketcher.Constraint("Coincident", 63, 2, 60, 1),
    Sketcher.Constraint("Coincident", 64, 2, 65, 1),
    Sketcher.Constraint("Coincident", 65, 2, 66, 2),
    Sketcher.Constraint("Coincident", 66, 1, 67, 1),
    Sketcher.Constraint("Coincident", 67, 2, 64, 1),
    Sketcher.Constraint("Coincident", 68, 2, 69, 1),
    Sketcher.Constraint("Coincident", 69, 2, 70, 1),
    Sketcher.Constraint("Coincident", 70, 2, 71, 2),
    Sketcher.Constraint("Coincident", 71, 1, 68, 1),
    Sketcher.Constraint("Vertical", 0),
    Sketcher.Constraint("Horizontal", 1),
    Sketcher.Constraint("Vertical", 2),
    Sketcher.Constraint("Horizontal", 3),
    Sketcher.Constraint("Vertical", 4),
    Sketcher.Constraint("Horizontal", 5),
    Sketcher.Constraint("Vertical", 6),
    Sketcher.Constraint("Horizontal", 7),
    Sketcher.Constraint("Vertical", 8),
    Sketcher.Constraint("Horizontal", 9),
    Sketcher.Constraint("Vertical", 10),
    Sketcher.Constraint("Horizontal", 11),
    Sketcher.Constraint("Vertical", 12),
    Sketcher.Constraint("Horizontal", 13),
    Sketcher.Constraint("Vertical", 14),
    Sketcher.Constraint("Horizontal", 15),
    Sketcher.Constraint("Vertical", 16),
    Sketcher.Constraint("Horizontal", 17),
    Sketcher.Constraint("Vertical", 18),
    Sketcher.Constraint("Horizontal", 19),
    Sketcher.Constraint("Vertical", 20),
    Sketcher.Constraint("Horizontal", 21),
    Sketcher.Constraint("Vertical", 22),
    Sketcher.Constraint("Horizontal", 23),
    Sketcher.Constraint("Horizontal", 24),
    Sketcher.Constraint("Vertical", 25),
    Sketcher.Constraint("Vertical", 27),
    Sketcher.Constraint("Vertical", 28),
    Sketcher.Constraint("Horizontal", 29),
    Sketcher.Constraint("Vertical", 30),
    Sketcher.Constraint("Horizontal", 31),
    Sketcher.Constraint("Vertical", 32),
    Sketcher.Constraint("Horizontal", 33),
    Sketcher.Constraint("Vertical", 34),
    Sketcher.Constraint("Horizontal", 35),
    Sketcher.Constraint("Vertical", 36),
    Sketcher.Constraint("Horizontal", 37),
    Sketcher.Constraint("Vertical", 38),
    Sketcher.Constraint("Vertical", 40),
    Sketcher.Constraint("Horizontal", 41),
    Sketcher.Constraint("Vertical", 42),
    Sketcher.Constraint("Horizontal", 43),
    Sketcher.Constraint("Vertical", 44),
    Sketcher.Constraint("Horizontal", 45),
    Sketcher.Constraint("Vertical", 46),
    Sketcher.Constraint("Horizontal", 47),
    Sketcher.Constraint("Vertical", 48),
    Sketcher.Constraint("Horizontal", 49),
    Sketcher.Constraint("Vertical", 50),
    Sketcher.Constraint("Horizontal", 51),
    Sketcher.Constraint("Vertical", 52),
    Sketcher.Constraint("Horizontal", 53),
    Sketcher.Constraint("Vertical", 54),
    Sketcher.Constraint("Horizontal", 55),
    Sketcher.Constraint("Vertical", 56),
    Sketcher.Constraint("Horizontal", 57),
    Sketcher.Constraint("Vertical", 58),
    Sketcher.Constraint("Horizontal", 59),
    Sketcher.Constraint("Vertical", 60),
    Sketcher.Constraint("Horizontal", 61),
    Sketcher.Constraint("Vertical", 62),
    Sketcher.Constraint("Horizontal", 63),
    Sketcher.Constraint("Horizontal", 64),
    Sketcher.Constraint("Vertical", 65),
    Sketcher.Constraint("Vertical", 67),
    Sketcher.Constraint("Vertical", 68),
    Sketcher.Constraint("Horizontal", 69),
    Sketcher.Constraint("Vertical", 70),
    Sketcher.Constraint("Coincident", 26, 3, -1, 1),
    Sketcher.Constraint("Coincident", 39, 3, -1, 1),
    Sketcher.Constraint("Coincident", 66, 3, -1, 1),
    Sketcher.Constraint("Coincident", 71, 3, -1, 1),
    Sketcher.Constraint("Equal", 26, 39),
    Sketcher.Constraint("Equal", 39, 66),
    Sketcher.Constraint("Equal", 66, 71),
    Sketcher.Constraint("Symmetric", 14, 2, 20, 2, -1, 1),
    Sketcher.Constraint("Symmetric", 12, 2, 22, 2, -1, 1),
    Sketcher.Constraint("Symmetric", 6, 2, 32, 2, -1, 1),
    Sketcher.Constraint("Symmetric", 4, 2, 34, 2, -1, 1),
    Sketcher.Constraint("Symmetric", 30, 2, 40, 2, -1, 1),
    Sketcher.Constraint("Symmetric", 28, 2, 42, 2, -1, 1),
    Sketcher.Constraint("Symmetric", 2, 2, 44, 2, -1, 1),
    Sketcher.Constraint("Symmetric", 0, 2, 46, 2, -1, 1),
    Sketcher.Constraint("Symmetric", 18, 2, 52, 2, -1, 1),
    Sketcher.Constraint("Symmetric", 16, 2, 54, 2, -1, 1),
    Sketcher.Constraint("Symmetric", 50, 2, 56, 2, -1, 1),
    Sketcher.Constraint("Symmetric", 48, 2, 58, 2, -1, 1),
    Sketcher.Constraint("Symmetric", 10, 2, 60, 2, -1, 1),
    Sketcher.Constraint("Symmetric", 8, 2, 62, 2, -1, 1),
    Sketcher.Constraint("Symmetric", 37, 2, 64, 2, -1, 1),
    Sketcher.Constraint("Symmetric", 27, 2, 68, 2, -1, 1),
    Sketcher.Constraint("Symmetric", 1, 2, 32, 2, -2),
    Sketcher.Constraint("Symmetric", 3, 2, 34, 2, -2),
    Sketcher.Constraint("Symmetric", 9, 2, 52, 2, -2),
    Sketcher.Constraint("Symmetric", 11, 2, 54, 2, -2),
    Sketcher.Constraint("Symmetric", 27, 2, 64, 2, -2),
    Sketcher.Constraint("Horizontal", 1, 2, 12, 2),
    Sketcher.Constraint("Horizontal", 3, 2, 14, 2),
    Sketcher.Constraint("Horizontal", 9, 2, 28, 2),
    Sketcher.Constraint("Horizontal", 11, 2, 30, 2),
    Sketcher.Constraint("Horizontal", 27, 2, 50, 2),
    Sketcher.Constraint("Horizontal", 25, 2, 66, 1),
    Sketcher.Constraint("Horizontal", 39, 1, 70, 2),
    Sketcher.Constraint("Vertical", 7, 2, 8, 2),
    Sketcher.Constraint("Vertical", 6, 2, 9, 2),
    Sketcher.Constraint("Vertical", 15, 2, 20, 2),
    Sketcher.Constraint("Vertical", 19, 2, 24, 2),
    Sketcher.Constraint("Vertical", 18, 2, 26, 1),
    Sketcher.Constraint("Vertical", 23, 2, 28, 2),
    Sketcher.Constraint("Vertical", 22, 2, 29, 2),
    Sketcher.Constraint("Vertical", 25, 2, 36, 2),
    Sketcher.Constraint("Vertical", 43, 2, 48, 2),
    Sketcher.Constraint("Vertical", 42, 2, 49, 2),
    Sketcher.Constraint("Equal", 11, 13),
    Sketcher.Constraint("Equal", 6, 8),
    Sketcher.Constraint("Equal", 46, 48),
    Sketcher.Constraint("DistanceX", 1, 1, 1, 2, Q("1.5 mm")),
    Sketcher.Constraint("DistanceY", -1, 1, 2, 2, Q("0.75 mm")),
    Sketcher.Constraint("DistanceY", -1, 1, 48, 2, Q("38.675 mm")),
    Sketcher.Constraint("Radius", 26, Q("40.249998 mm")),
    Sketcher.Constraint("DistanceY", 27, 2, 27, 1, Q("8.469992 mm")),
    Sketcher.Constraint("DistanceX", 0, 2, -1, 1, Q("20.4625 mm")),
    Sketcher.Constraint("DistanceY", -1, 1, 8, 2, Q("25.533333 mm")),
])
pad3 = doc.addObject("PartDesign::Pad", "Pad002")
body.addObject(pad3)
pad3.Profile = sketch3
pad3.Type = "UpToLast"

sketch4 = doc.addObject("Sketcher::SketchObject", "Sketch003")
body.addObject(sketch4)
sketch4.AttachmentSupport = (doc.XZ_Plane, [""])
sketch4.MapMode = "FlatFace"
sketch4.AttachmentOffset = App.Placement(App.Vector(0, 0, -3), App.Rotation())
sketch4.addGeometry([
    Part.Circle(App.Vector(-35.75, -35.75, 0), App.Vector(0, 0, 1), 2),
    Part.Circle(App.Vector(35.75, -35.75, 0), App.Vector(0, 0, 1), 2),
    Part.Circle(App.Vector(35.75, 35.75, 0), App.Vector(0, 0, 1), 2),
    Part.Circle(App.Vector(-35.75, 35.75, 0), App.Vector(0, 0, 1), 2),
], False)
sketch4.addConstraint([
    Sketcher.Constraint("Equal", 0, 1),
    Sketcher.Constraint("Equal", 1, 2),
    Sketcher.Constraint("Equal", 2, 3),
    Sketcher.Constraint("Symmetric", 0, 3, 2, 3, -1, 1),
    Sketcher.Constraint("Symmetric", 1, 3, 3, 3, -1, 1),
    Sketcher.Constraint("Symmetric", 0, 3, 1, 3, -2),
    Sketcher.Constraint("Diameter", 0, Q("4 mm")),
    Sketcher.Constraint("DistanceX", 0, 3, 1, 3, Q("71.5 mm")),
    Sketcher.Constraint("DistanceY", 1, 3, 2, 3, Q("71.5 mm")),
])
pocket1 = doc.addObject("PartDesign::Pocket", "Pocket")
body.addObject(pocket1)
pocket1.Profile = sketch4
pocket1.Type = "ThroughAll"
pocket1.Reversed = True

doc.recompute()
